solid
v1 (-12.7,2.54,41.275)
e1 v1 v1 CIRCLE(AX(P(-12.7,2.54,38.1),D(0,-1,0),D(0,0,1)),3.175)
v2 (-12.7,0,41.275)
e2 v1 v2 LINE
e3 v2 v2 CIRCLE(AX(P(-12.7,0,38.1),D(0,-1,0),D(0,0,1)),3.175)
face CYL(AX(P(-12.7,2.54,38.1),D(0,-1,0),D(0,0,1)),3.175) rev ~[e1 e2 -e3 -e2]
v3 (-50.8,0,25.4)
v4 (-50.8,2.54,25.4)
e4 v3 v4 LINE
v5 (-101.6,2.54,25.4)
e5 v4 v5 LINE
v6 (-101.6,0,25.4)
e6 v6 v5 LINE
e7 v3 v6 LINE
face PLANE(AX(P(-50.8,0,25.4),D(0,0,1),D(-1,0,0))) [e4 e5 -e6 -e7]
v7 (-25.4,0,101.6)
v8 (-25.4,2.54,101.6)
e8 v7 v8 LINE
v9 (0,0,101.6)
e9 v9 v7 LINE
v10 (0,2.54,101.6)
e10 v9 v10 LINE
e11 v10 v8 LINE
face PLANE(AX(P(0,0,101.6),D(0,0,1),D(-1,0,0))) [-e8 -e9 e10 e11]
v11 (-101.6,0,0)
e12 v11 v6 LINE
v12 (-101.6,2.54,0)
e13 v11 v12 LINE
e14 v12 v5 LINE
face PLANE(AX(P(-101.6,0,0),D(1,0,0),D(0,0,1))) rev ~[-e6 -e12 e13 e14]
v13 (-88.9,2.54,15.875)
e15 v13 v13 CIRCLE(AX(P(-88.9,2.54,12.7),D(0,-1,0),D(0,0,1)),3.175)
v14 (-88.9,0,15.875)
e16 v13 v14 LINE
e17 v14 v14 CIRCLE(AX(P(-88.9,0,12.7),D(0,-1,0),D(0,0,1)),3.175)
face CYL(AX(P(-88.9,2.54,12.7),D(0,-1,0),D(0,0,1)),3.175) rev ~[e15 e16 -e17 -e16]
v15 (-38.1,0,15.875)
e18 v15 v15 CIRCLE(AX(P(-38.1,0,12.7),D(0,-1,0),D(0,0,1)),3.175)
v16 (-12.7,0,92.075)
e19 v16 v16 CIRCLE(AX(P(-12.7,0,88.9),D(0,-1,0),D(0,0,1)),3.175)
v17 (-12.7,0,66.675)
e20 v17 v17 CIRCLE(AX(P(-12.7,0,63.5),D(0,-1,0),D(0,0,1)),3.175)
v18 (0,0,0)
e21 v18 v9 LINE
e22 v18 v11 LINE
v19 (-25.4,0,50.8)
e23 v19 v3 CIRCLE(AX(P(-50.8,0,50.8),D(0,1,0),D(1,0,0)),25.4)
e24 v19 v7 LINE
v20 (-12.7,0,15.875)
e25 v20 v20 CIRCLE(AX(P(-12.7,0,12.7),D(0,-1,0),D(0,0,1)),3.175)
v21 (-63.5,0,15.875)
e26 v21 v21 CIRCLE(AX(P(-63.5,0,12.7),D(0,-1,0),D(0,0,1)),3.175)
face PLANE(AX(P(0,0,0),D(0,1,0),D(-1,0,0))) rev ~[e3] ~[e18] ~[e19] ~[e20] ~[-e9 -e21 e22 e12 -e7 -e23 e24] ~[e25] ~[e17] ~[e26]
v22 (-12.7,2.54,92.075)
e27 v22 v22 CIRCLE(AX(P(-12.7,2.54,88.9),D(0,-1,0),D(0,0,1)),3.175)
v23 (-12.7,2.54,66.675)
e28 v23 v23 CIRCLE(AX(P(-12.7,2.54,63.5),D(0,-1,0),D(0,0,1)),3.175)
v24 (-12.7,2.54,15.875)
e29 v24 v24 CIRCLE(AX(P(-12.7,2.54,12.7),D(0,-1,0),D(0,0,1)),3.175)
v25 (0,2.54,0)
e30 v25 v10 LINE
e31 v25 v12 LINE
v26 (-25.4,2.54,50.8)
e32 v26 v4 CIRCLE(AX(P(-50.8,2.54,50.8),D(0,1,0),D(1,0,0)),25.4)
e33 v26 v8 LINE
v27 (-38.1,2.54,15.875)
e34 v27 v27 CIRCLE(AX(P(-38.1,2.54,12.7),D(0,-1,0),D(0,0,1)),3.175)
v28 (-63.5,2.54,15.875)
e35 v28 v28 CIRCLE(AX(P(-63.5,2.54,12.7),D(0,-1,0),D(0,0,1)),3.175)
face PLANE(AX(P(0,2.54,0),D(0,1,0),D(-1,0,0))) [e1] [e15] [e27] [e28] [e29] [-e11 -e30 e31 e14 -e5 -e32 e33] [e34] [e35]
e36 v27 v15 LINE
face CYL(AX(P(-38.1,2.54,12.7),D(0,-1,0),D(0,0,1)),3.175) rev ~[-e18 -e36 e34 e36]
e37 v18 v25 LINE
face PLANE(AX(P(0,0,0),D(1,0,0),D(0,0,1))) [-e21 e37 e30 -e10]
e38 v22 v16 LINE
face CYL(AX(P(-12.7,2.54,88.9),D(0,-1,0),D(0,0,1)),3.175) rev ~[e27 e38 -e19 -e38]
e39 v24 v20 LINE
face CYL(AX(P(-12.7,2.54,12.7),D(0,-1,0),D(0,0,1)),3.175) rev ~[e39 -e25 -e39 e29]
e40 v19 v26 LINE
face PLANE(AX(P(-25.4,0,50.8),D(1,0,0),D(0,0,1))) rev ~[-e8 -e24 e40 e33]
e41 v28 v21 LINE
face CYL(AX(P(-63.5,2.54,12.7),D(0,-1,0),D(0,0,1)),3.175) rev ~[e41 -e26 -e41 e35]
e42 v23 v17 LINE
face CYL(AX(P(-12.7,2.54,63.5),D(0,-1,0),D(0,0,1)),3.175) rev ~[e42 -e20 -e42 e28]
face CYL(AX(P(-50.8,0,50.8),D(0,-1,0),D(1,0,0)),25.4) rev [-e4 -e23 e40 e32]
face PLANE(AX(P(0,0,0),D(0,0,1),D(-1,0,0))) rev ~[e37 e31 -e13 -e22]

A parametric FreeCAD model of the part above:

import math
import FreeCAD as App
import Part
import Sketcher
from FreeCAD import Vector
Q = App.Units.Quantity

doc = App.newDocument("Part")
body = doc.addObject("PartDesign::Body", "Body")

# Sketch on XZ plane
sketch1 = body.newObject("Sketcher::SketchObject", "Sketch")
sketch1.AttachmentSupport = (doc.getObject("XZ_Plane"), [""])
sketch1.MapMode = "FlatFace"
sketch1.addGeometry(Part.LineSegment(Vector(0, 102, 0), Vector(0, 0, 0)), False)
sketch1.addGeometry(Part.LineSegment(Vector(0, 0, 0), Vector(-102, 0, 0)), False)
sketch1.addGeometry(Part.LineSegment(Vector(-102, 0, 0), Vector(-102, 25, 0)), False)
sketch1.addGeometry(Part.LineSegment(Vector(-102, 25, 0), Vector(-51, 25, 0)), False)
sketch1.addGeometry(Part.ArcOfCircle(Part.Circle(Vector(-51, 51, 0), Vector(0, 0, 1), 25), math.radians(-90), math.radians(0)), False)
sketch1.addGeometry(Part.LineSegment(Vector(-25, 51, 0), Vector(-25, 102, 0)), False)
sketch1.addGeometry(Part.LineSegment(Vector(-25, 102, 0), Vector(0, 102, 0)), False)
sketch1.addConstraint(Sketcher.Constraint("Coincident", 0, 2, 1, 1))
sketch1.addConstraint(Sketcher.Constraint("Coincident", 1, 2, 2, 1))
sketch1.addConstraint(Sketcher.Constraint("Coincident", 2, 2, 3, 1))
sketch1.addConstraint(Sketcher.Constraint("Tangent", 3, 2, 4, 1))
sketch1.addConstraint(Sketcher.Constraint("Tangent", 4, 2, 5, 1))
sketch1.addConstraint(Sketcher.Constraint("Coincident", 5, 2, 6, 1))
sketch1.addConstraint(Sketcher.Constraint("Coincident", 6, 2, 0, 1))
sketch1.addConstraint(Sketcher.Constraint("Vertical", 0))
sketch1.addConstraint(Sketcher.Constraint("Horizontal", 1))
sketch1.addConstraint(Sketcher.Constraint("Vertical", 2))
sketch1.addConstraint(Sketcher.Constraint("Horizontal", 3))
sketch1.addConstraint(Sketcher.Constraint("Vertical", 5))
sketch1.addConstraint(Sketcher.Constraint("Horizontal", 6))
sketch1.addConstraint(Sketcher.Constraint("Coincident", 0, 2, -1, 1))
sketch1.addConstraint(Sketcher.Constraint("Equal", 1, 0))
sketch1.addConstraint(Sketcher.Constraint("Equal", 6, 2))
sketch1.addConstraint(Sketcher.Constraint("Radius", 4, Q("1 in")))
sketch1.addConstraint(Sketcher.Constraint("DistanceX", 1, 2, 1, 1, Q("4 in")))
sketch1.addConstraint(Sketcher.Constraint("DistanceX", 6, 1, 6, 2, Q("1 in")))
pad1 = body.newObject("PartDesign::Pad", "Pad")
pad1.Profile = sketch1
pad1.Length = Q("0.1 in")
pad1.Reversed = True

# Sketch on XZ plane
sketch2 = body.newObject("Sketcher::SketchObject", "Sketch001")
sketch2.AttachmentSupport = (doc.getObject("XZ_Plane"), [""])
sketch2.MapMode = "FlatFace"
sketch2.AttachmentOffset = App.Placement(Vector(0, 0, -0.1 * 25.4), App.Rotation())
sketch2.addGeometry(Part.Circle(Vector(-12.7, 12.7, 0), Vector(0, 0, 1), 3.2), False)
sketch2.addConstraint(Sketcher.Constraint("Diameter", 0, Q("0.25 in")))
sketch2.addConstraint(Sketcher.Constraint("DistanceX", 0, 3, -1, 1, Q("0.5 in")))
sketch2.addConstraint(Sketcher.Constraint("DistanceY", -1, 1, 0, 3, Q("0.5 in")))
doc.recompute()
hole = body.newObject("PartDesign::Hole", "Hole")
hole.Profile = sketch2
hole.ThreadType = "None"
hole.Diameter = Q("0.25 in")
hole.DepthType = "ThroughAll"
hole.Reversed = True
doc.recompute()

linearpattern = body.newObject("PartDesign::LinearPattern", "LinearPattern")
linearpattern.Originals = [hole]
linearpattern.Direction = (doc.getObject("X_Axis"), [""])
linearpattern.Mode = "offset"
linearpattern.Offset = Q("1 in")
linearpattern.Occurrences = 4
linearpattern.Reversed = True
body.Tip = linearpattern
doc.recompute()

linearpattern2 = body.newObject("PartDesign::LinearPattern", "LinearPattern001")
linearpattern2.Originals = [hole]
linearpattern2.Direction = (doc.getObject("Z_Axis"), [""])
linearpattern2.Mode = "offset"
linearpattern2.Offset = Q("1 in")
linearpattern2.Occurrences = 4
body.Tip = linearpattern2

doc.recompute()
